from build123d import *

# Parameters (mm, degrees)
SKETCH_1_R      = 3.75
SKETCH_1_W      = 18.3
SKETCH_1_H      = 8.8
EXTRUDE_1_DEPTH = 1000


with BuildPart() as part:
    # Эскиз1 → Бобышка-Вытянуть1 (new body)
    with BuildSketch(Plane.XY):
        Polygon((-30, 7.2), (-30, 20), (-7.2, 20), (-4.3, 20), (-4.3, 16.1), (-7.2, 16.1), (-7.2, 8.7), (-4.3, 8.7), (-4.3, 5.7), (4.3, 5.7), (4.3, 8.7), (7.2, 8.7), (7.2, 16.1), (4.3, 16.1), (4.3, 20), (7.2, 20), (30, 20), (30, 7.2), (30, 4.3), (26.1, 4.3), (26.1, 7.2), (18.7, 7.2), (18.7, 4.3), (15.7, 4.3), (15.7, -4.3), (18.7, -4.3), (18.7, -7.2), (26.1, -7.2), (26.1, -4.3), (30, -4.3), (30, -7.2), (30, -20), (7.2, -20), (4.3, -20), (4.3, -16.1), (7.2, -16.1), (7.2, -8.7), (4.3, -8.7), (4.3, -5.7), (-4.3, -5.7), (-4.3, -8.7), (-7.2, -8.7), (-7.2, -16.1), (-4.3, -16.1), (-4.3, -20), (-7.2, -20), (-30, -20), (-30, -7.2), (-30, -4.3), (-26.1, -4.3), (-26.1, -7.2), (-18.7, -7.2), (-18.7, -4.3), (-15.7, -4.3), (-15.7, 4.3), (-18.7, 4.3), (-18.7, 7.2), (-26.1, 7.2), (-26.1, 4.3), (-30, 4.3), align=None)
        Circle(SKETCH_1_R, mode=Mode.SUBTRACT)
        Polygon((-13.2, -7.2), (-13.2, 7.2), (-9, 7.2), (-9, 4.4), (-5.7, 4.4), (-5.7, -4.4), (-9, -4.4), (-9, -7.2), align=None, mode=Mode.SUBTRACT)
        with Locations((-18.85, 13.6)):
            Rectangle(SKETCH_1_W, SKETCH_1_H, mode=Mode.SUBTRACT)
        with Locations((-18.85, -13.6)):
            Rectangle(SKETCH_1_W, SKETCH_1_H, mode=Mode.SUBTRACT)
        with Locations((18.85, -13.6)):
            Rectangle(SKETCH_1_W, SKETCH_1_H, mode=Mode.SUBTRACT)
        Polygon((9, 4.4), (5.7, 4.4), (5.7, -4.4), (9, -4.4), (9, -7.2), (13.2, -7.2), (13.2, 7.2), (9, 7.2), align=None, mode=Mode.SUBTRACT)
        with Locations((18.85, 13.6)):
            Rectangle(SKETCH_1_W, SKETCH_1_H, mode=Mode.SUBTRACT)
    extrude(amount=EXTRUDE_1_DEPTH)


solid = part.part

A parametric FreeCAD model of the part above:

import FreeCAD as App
import Part
import Sketcher
Q = App.Units.Quantity


def add_polygon(sketch, points):
    """Adds a closed chain of lines whose ends are joined by coincident constraints."""
    first, n = sketch.GeometryCount, len(points)
    for a, b in zip(points, points[1:] + points[:1]):
        sketch.addGeometry(Part.LineSegment(App.Vector(*a, 0), App.Vector(*b, 0)), False)
    for i in range(n):
        sketch.addConstraint(Sketcher.Constraint("Coincident", first + i, 2, first + (i + 1) % n, 1))

doc = App.newDocument("Part")
body = doc.addObject("PartDesign::Body", "Body")

# Sketch on XY plane
sketch1 = body.newObject("Sketcher::SketchObject", "Sketch")
sketch1.AttachmentSupport = (doc.getObject("XY_Plane"), [""])
sketch1.MapMode = "FlatFace"
add_polygon(sketch1, [(-30, 20), (-30, 4.3), (-26.1, 4.3), (-26.1, 7.2), (-18.7, 7.2), (-18.7, 4.3), (-15.7, 4.3), (-15.7, -4.3), (-18.7, -4.3), (-18.7, -7.2), (-26.1, -7.2), (-26.1, -4.3), (-30, -4.3), (-30, -20), (-4.3, -20), (-4.3, -16.1), (-7.2, -16.1), (-7.2, -8.7), (-4.3, -8.7), (-4.3, -5.7), (4.3, -5.7), (4.3, -8.7), (7.2, -8.7), (7.2, -16.1), (4.3, -16.1), (4.3, -20), (30, -20), (30, -4.3), (26.1, -4.3), (26.1, -7.2), (18.7, -7.2), (18.7, -4.3), (15.7, -4.3), (15.7, 4.3), (18.7, 4.3), (18.7, 7.2), (26.1, 7.2), (26.1, 4.3), (30, 4.3), (30, 20), (4.3, 20), (4.3, 16.1), (7.2, 16.1), (7.2, 8.7), (4.3, 8.7), (4.3, 5.7), (-4.3, 5.7), (-4.3, 8.7), (-7.2, 8.7), (-7.2, 16.1), (-4.3, 16.1), (-4.3, 20)])  # lines 0-51
add_polygon(sketch1, [(9.7, -18), (9.7, -9.2), (28, -9.2), (28, -18)])  # lines 52-55
add_polygon(sketch1, [(-28, -18), (-28, -9.2), (-9.7, -9.2), (-9.7, -18)])  # lines 56-59
add_polygon(sketch1, [(9, 4.4), (9, 7.2), (13.2, 7.2), (13.2, -7.2), (9, -7.2), (9, -4.4), (5.7, -4.4), (5.7, 4.4)])  # lines 60-67
add_polygon(sketch1, [(9.7, 9.2), (9.7, 18), (28, 18), (28, 9.2)])  # lines 68-71
sketch1.addGeometry(Part.Circle(App.Vector(0, 0, 0), App.Vector(0, 0, 1), 3.75), False)  # 72
add_polygon(sketch1, [(-13.2, -7.2), (-13.2, 7.2), (-9, 7.2), (-9, 4.4), (-5.7, 4.4), (-5.7, -4.4), (-9, -4.4), (-9, -7.2)])  # lines 73-80
add_polygon(sketch1, [(-28, 9.2), (-28, 18), (-9.7, 18), (-9.7, 9.2)])  # lines 81-84
sketch1.addConstraint(Sketcher.Constraint("Vertical", 0))
sketch1.addConstraint(Sketcher.Constraint("Horizontal", 1))
sketch1.addConstraint(Sketcher.Constraint("Vertical", 2))
sketch1.addConstraint(Sketcher.Constraint("Horizontal", 3))
sketch1.addConstraint(Sketcher.Constraint("Vertical", 4))
sketch1.addConstraint(Sketcher.Constraint("Horizontal", 5))
sketch1.addConstraint(Sketcher.Constraint("Vertical", 6))
sketch1.addConstraint(Sketcher.Constraint("Horizontal", 7))
sketch1.addConstraint(Sketcher.Constraint("Vertical", 8))
sketch1.addConstraint(Sketcher.Constraint("Horizontal", 9))
sketch1.addConstraint(Sketcher.Constraint("Vertical", 10))
sketch1.addConstraint(Sketcher.Constraint("Horizontal", 11))
sketch1.addConstraint(Sketcher.Constraint("Vertical", 12))
sketch1.addConstraint(Sketcher.Constraint("Horizontal", 13))
sketch1.addConstraint(Sketcher.Constraint("Vertical", 14))
sketch1.addConstraint(Sketcher.Constraint("Horizontal", 15))
sketch1.addConstraint(Sketcher.Constraint("Vertical", 16))
sketch1.addConstraint(Sketcher.Constraint("Horizontal", 17))
sketch1.addConstraint(Sketcher.Constraint("Vertical", 18))
sketch1.addConstraint(Sketcher.Constraint("Horizontal", 19))
sketch1.addConstraint(Sketcher.Constraint("Vertical", 20))
sketch1.addConstraint(Sketcher.Constraint("Horizontal", 21))
sketch1.addConstraint(Sketcher.Constraint("Vertical", 22))
sketch1.addConstraint(Sketcher.Constraint("Horizontal", 23))
sketch1.addConstraint(Sketcher.Constraint("Vertical", 24))
sketch1.addConstraint(Sketcher.Constraint("Horizontal", 25))
sketch1.addConstraint(Sketcher.Constraint("Vertical", 26))
sketch1.addConstraint(Sketcher.Constraint("Horizontal", 27))
sketch1.addConstraint(Sketcher.Constraint("Vertical", 28))
sketch1.addConstraint(Sketcher.Constraint("Horizontal", 29))
sketch1.addConstraint(Sketcher.Constraint("Vertical", 30))
sketch1.addConstraint(Sketcher.Constraint("Horizontal", 31))
sketch1.addConstraint(Sketcher.Constraint("Vertical", 32))
sketch1.addConstraint(Sketcher.Constraint("Horizontal", 33))
sketch1.addConstraint(Sketcher.Constraint("Vertical", 34))
sketch1.addConstraint(Sketcher.Constraint("Horizontal", 35))
sketch1.addConstraint(Sketcher.Constraint("Vertical", 36))
sketch1.addConstraint(Sketcher.Constraint("Horizontal", 37))
sketch1.addConstraint(Sketcher.Constraint("Vertical", 38))
sketch1.addConstraint(Sketcher.Constraint("Horizontal", 39))
sketch1.addConstraint(Sketcher.Constraint("Vertical", 40))
sketch1.addConstraint(Sketcher.Constraint("Horizontal", 41))
sketch1.addConstraint(Sketcher.Constraint("Vertical", 42))
sketch1.addConstraint(Sketcher.Constraint("Horizontal", 43))
sketch1.addConstraint(Sketcher.Constraint("Vertical", 44))
sketch1.addConstraint(Sketcher.Constraint("Horizontal", 45))
sketch1.addConstraint(Sketcher.Constraint("Vertical", 46))
sketch1.addConstraint(Sketcher.Constraint("Horizontal", 47))
sketch1.addConstraint(Sketcher.Constraint("Vertical", 48))
sketch1.addConstraint(Sketcher.Constraint("Horizontal", 49))
sketch1.addConstraint(Sketcher.Constraint("Vertical", 50))
sketch1.addConstraint(Sketcher.Constraint("Horizontal", 51))
sketch1.addConstraint(Sketcher.Constraint("Vertical", 52))
sketch1.addConstraint(Sketcher.Constraint("Horizontal", 53))
sketch1.addConstraint(Sketcher.Constraint("Vertical", 54))
sketch1.addConstraint(Sketcher.Constraint("Horizontal", 55))
sketch1.addConstraint(Sketcher.Constraint("Vertical", 56))
sketch1.addConstraint(Sketcher.Constraint("Horizontal", 57))
sketch1.addConstraint(Sketcher.Constraint("Vertical", 58))
sketch1.addConstraint(Sketcher.Constraint("Horizontal", 59))
sketch1.addConstraint(Sketcher.Constraint("Vertical", 60))
sketch1.addConstraint(Sketcher.Constraint("Horizontal", 61))
sketch1.addConstraint(Sketcher.Constraint("Vertical", 62))
sketch1.addConstraint(Sketcher.Constraint("Horizontal", 63))
sketch1.addConstraint(Sketcher.Constraint("Vertical", 64))
sketch1.addConstraint(Sketcher.Constraint("Horizontal", 65))
sketch1.addConstraint(Sketcher.Constraint("Vertical", 66))
sketch1.addConstraint(Sketcher.Constraint("Horizontal", 67))
sketch1.addConstraint(Sketcher.Constraint("Vertical", 68))
sketch1.addConstraint(Sketcher.Constraint("Horizontal", 69))
sketch1.addConstraint(Sketcher.Constraint("Vertical", 70))
sketch1.addConstraint(Sketcher.Constraint("Horizontal", 71))
sketch1.addConstraint(Sketcher.Constraint("Vertical", 73))
sketch1.addConstraint(Sketcher.Constraint("Horizontal", 74))
sketch1.addConstraint(Sketcher.Constraint("Vertical", 75))
sketch1.addConstraint(Sketcher.Constraint("Horizontal", 76))
sketch1.addConstraint(Sketcher.Constraint("Vertical", 77))
sketch1.addConstraint(Sketcher.Constraint("Horizontal", 78))
sketch1.addConstraint(Sketcher.Constraint("Vertical", 79))
sketch1.addConstraint(Sketcher.Constraint("Horizontal", 80))
sketch1.addConstraint(Sketcher.Constraint("Vertical", 81))
sketch1.addConstraint(Sketcher.Constraint("Horizontal", 82))
sketch1.addConstraint(Sketcher.Constraint("Vertical", 83))
sketch1.addConstraint(Sketcher.Constraint("Horizontal", 84))
sketch1.addConstraint(Sketcher.Constraint("Coincident", 72, 3, -1, 1))
sketch1.addConstraint(Sketcher.Constraint("Symmetric", 0, 2, 26, 2, -1, 1))
sketch1.addConstraint(Sketcher.Constraint("Symmetric", 2, 2, 28, 2, -1, 1))
sketch1.addConstraint(Sketcher.Constraint("Symmetric", 4, 2, 30, 2, -1, 1))
sketch1.addConstraint(Sketcher.Constraint("Symmetric", 6, 2, 32, 2, -1, 1))
sketch1.addConstraint(Sketcher.Constraint("Symmetric", 8, 2, 34, 2, -1, 1))
sketch1.addConstraint(Sketcher.Constraint("Symmetric", 10, 2, 36, 2, -1, 1))
sketch1.addConstraint(Sketcher.Constraint("Symmetric", 12, 2, 38, 2, -1, 1))
sketch1.addConstraint(Sketcher.Constraint("Symmetric", 14, 2, 40, 2, -1, 1))
sketch1.addConstraint(Sketcher.Constraint("Symmetric", 16, 2, 42, 2, -1, 1))
sketch1.addConstraint(Sketcher.Constraint("Symmetric", 18, 2, 44, 2, -1, 1))
sketch1.addConstraint(Sketcher.Constraint("Symmetric", 20, 2, 46, 2, -1, 1))
sketch1.addConstraint(Sketcher.Constraint("Symmetric", 22, 2, 48, 2, -1, 1))
sketch1.addConstraint(Sketcher.Constraint("Symmetric", 24, 2, 50, 2, -1, 1))
sketch1.addConstraint(Sketcher.Constraint("Symmetric", 58, 2, 68, 2, -1, 1))
sketch1.addConstraint(Sketcher.Constraint("Symmetric", 56, 2, 70, 2, -1, 1))
sketch1.addConstraint(Sketcher.Constraint("Symmetric", 62, 2, 73, 2, -1, 1))
sketch1.addConstraint(Sketcher.Constraint("Symmetric", 64, 2, 75, 2, -1, 1))
sketch1.addConstraint(Sketcher.Constraint("Symmetric", 66, 2, 77, 2, -1, 1))
sketch1.addConstraint(Sketcher.Constraint("Symmetric", 60, 2, 79, 2, -1, 1))
sketch1.addConstraint(Sketcher.Constraint("Symmetric", 54, 2, 81, 2, -1, 1))
sketch1.addConstraint(Sketcher.Constraint("Symmetric", 52, 2, 83, 2, -1, 1))
sketch1.addConstraint(Sketcher.Constraint("Symmetric", 17, 2, 20, 2, -2))
sketch1.addConstraint(Sketcher.Constraint("Symmetric", 15, 2, 22, 2, -2))
sketch1.addConstraint(Sketcher.Constraint("Symmetric", 13, 2, 24, 2, -2))
sketch1.addConstraint(Sketcher.Constraint("Symmetric", 11, 2, 26, 2, -2))
sketch1.addConstraint(Sketcher.Constraint("Symmetric", 9, 2, 28, 2, -2))
sketch1.addConstraint(Sketcher.Constraint("Symmetric", 7, 2, 30, 2, -2))
sketch1.addConstraint(Sketcher.Constraint("Symmetric", 53, 2, 56, 2, -2))
sketch1.addConstraint(Sketcher.Constraint("Symmetric", 55, 2, 58, 2, -2))
sketch1.addConstraint(Sketcher.Constraint("Symmetric", 60, 2, 74, 2, -2))
sketch1.addConstraint(Sketcher.Constraint("Horizontal", 1, 2, 4, 2))
sketch1.addConstraint(Sketcher.Constraint("Horizontal", 35, 2, 60, 2))
sketch1.addConstraint(Sketcher.Constraint("Horizontal", 67, 2, 75, 2))
sketch1.addConstraint(Sketcher.Constraint("Vertical", 14, 2, 17, 2))
sketch1.addConstraint(Sketcher.Constraint("Equal", 49, 2))
sketch1.addConstraint(Sketcher.Constraint("Equal", 45, 6))
sketch1.addConstraint(Sketcher.Constraint("Equal", 37, 14))
sketch1.addConstraint(Sketcher.Constraint("Equal", 35, 16))
sketch1.addConstraint(Sketcher.Constraint("Equal", 33, 18))
sketch1.addConstraint(Sketcher.Constraint("Equal", 58, 66))
sketch1.addConstraint(Sketcher.Constraint("Diameter", 72, Q("7.5 mm")))
sketch1.addConstraint(Sketcher.Constraint("DistanceX", 5, 1, 5, 2, Q("3 mm")))
sketch1.addConstraint(Sketcher.Constraint("DistanceX", 1, 1, 1, 2, Q("3.9 mm")))
sketch1.addConstraint(Sketcher.Constraint("DistanceX", 3, 1, 3, 2, Q("7.4 mm")))
sketch1.addConstraint(Sketcher.Constraint("DistanceX", 13, 1, 13, 2, Q("25.7 mm")))
sketch1.addConstraint(Sketcher.Constraint("DistanceX", 15, 2, 15, 1, Q("2.9 mm")))
sketch1.addConstraint(Sketcher.Constraint("DistanceX", 19, 1, 19, 2, Q("8.6 mm")))
sketch1.addConstraint(Sketcher.Constraint("DistanceX", 53, 1, 53, 2, Q("18.3 mm")))
sketch1.addConstraint(Sketcher.Constraint("DistanceX", 61, 1, 61, 2, Q("4.2 mm")))
sketch1.addConstraint(Sketcher.Constraint("DistanceX", 65, 2, 65, 1, Q("3.3 mm")))
sketch1.addConstraint(Sketcher.Constraint("DistanceY", 0, 2, 0, 1, Q("15.7 mm")))
sketch1.addConstraint(Sketcher.Constraint("DistanceY", 52, 1, 52, 2, Q("8.8 mm")))
sketch1.addConstraint(Sketcher.Constraint("DistanceX", -1, 1, 53, 2, Q("28 mm")))
sketch1.addConstraint(Sketcher.Constraint("DistanceY", 54, 2, -1, 1, Q("18 mm")))
sketch1.addConstraint(Sketcher.Constraint("DistanceX", -1, 1, 60, 2, Q("9 mm")))
pad1 = body.newObject("PartDesign::Pad", "Pad")
pad1.Profile = sketch1
pad1.Length = 1000

doc.recompute()
